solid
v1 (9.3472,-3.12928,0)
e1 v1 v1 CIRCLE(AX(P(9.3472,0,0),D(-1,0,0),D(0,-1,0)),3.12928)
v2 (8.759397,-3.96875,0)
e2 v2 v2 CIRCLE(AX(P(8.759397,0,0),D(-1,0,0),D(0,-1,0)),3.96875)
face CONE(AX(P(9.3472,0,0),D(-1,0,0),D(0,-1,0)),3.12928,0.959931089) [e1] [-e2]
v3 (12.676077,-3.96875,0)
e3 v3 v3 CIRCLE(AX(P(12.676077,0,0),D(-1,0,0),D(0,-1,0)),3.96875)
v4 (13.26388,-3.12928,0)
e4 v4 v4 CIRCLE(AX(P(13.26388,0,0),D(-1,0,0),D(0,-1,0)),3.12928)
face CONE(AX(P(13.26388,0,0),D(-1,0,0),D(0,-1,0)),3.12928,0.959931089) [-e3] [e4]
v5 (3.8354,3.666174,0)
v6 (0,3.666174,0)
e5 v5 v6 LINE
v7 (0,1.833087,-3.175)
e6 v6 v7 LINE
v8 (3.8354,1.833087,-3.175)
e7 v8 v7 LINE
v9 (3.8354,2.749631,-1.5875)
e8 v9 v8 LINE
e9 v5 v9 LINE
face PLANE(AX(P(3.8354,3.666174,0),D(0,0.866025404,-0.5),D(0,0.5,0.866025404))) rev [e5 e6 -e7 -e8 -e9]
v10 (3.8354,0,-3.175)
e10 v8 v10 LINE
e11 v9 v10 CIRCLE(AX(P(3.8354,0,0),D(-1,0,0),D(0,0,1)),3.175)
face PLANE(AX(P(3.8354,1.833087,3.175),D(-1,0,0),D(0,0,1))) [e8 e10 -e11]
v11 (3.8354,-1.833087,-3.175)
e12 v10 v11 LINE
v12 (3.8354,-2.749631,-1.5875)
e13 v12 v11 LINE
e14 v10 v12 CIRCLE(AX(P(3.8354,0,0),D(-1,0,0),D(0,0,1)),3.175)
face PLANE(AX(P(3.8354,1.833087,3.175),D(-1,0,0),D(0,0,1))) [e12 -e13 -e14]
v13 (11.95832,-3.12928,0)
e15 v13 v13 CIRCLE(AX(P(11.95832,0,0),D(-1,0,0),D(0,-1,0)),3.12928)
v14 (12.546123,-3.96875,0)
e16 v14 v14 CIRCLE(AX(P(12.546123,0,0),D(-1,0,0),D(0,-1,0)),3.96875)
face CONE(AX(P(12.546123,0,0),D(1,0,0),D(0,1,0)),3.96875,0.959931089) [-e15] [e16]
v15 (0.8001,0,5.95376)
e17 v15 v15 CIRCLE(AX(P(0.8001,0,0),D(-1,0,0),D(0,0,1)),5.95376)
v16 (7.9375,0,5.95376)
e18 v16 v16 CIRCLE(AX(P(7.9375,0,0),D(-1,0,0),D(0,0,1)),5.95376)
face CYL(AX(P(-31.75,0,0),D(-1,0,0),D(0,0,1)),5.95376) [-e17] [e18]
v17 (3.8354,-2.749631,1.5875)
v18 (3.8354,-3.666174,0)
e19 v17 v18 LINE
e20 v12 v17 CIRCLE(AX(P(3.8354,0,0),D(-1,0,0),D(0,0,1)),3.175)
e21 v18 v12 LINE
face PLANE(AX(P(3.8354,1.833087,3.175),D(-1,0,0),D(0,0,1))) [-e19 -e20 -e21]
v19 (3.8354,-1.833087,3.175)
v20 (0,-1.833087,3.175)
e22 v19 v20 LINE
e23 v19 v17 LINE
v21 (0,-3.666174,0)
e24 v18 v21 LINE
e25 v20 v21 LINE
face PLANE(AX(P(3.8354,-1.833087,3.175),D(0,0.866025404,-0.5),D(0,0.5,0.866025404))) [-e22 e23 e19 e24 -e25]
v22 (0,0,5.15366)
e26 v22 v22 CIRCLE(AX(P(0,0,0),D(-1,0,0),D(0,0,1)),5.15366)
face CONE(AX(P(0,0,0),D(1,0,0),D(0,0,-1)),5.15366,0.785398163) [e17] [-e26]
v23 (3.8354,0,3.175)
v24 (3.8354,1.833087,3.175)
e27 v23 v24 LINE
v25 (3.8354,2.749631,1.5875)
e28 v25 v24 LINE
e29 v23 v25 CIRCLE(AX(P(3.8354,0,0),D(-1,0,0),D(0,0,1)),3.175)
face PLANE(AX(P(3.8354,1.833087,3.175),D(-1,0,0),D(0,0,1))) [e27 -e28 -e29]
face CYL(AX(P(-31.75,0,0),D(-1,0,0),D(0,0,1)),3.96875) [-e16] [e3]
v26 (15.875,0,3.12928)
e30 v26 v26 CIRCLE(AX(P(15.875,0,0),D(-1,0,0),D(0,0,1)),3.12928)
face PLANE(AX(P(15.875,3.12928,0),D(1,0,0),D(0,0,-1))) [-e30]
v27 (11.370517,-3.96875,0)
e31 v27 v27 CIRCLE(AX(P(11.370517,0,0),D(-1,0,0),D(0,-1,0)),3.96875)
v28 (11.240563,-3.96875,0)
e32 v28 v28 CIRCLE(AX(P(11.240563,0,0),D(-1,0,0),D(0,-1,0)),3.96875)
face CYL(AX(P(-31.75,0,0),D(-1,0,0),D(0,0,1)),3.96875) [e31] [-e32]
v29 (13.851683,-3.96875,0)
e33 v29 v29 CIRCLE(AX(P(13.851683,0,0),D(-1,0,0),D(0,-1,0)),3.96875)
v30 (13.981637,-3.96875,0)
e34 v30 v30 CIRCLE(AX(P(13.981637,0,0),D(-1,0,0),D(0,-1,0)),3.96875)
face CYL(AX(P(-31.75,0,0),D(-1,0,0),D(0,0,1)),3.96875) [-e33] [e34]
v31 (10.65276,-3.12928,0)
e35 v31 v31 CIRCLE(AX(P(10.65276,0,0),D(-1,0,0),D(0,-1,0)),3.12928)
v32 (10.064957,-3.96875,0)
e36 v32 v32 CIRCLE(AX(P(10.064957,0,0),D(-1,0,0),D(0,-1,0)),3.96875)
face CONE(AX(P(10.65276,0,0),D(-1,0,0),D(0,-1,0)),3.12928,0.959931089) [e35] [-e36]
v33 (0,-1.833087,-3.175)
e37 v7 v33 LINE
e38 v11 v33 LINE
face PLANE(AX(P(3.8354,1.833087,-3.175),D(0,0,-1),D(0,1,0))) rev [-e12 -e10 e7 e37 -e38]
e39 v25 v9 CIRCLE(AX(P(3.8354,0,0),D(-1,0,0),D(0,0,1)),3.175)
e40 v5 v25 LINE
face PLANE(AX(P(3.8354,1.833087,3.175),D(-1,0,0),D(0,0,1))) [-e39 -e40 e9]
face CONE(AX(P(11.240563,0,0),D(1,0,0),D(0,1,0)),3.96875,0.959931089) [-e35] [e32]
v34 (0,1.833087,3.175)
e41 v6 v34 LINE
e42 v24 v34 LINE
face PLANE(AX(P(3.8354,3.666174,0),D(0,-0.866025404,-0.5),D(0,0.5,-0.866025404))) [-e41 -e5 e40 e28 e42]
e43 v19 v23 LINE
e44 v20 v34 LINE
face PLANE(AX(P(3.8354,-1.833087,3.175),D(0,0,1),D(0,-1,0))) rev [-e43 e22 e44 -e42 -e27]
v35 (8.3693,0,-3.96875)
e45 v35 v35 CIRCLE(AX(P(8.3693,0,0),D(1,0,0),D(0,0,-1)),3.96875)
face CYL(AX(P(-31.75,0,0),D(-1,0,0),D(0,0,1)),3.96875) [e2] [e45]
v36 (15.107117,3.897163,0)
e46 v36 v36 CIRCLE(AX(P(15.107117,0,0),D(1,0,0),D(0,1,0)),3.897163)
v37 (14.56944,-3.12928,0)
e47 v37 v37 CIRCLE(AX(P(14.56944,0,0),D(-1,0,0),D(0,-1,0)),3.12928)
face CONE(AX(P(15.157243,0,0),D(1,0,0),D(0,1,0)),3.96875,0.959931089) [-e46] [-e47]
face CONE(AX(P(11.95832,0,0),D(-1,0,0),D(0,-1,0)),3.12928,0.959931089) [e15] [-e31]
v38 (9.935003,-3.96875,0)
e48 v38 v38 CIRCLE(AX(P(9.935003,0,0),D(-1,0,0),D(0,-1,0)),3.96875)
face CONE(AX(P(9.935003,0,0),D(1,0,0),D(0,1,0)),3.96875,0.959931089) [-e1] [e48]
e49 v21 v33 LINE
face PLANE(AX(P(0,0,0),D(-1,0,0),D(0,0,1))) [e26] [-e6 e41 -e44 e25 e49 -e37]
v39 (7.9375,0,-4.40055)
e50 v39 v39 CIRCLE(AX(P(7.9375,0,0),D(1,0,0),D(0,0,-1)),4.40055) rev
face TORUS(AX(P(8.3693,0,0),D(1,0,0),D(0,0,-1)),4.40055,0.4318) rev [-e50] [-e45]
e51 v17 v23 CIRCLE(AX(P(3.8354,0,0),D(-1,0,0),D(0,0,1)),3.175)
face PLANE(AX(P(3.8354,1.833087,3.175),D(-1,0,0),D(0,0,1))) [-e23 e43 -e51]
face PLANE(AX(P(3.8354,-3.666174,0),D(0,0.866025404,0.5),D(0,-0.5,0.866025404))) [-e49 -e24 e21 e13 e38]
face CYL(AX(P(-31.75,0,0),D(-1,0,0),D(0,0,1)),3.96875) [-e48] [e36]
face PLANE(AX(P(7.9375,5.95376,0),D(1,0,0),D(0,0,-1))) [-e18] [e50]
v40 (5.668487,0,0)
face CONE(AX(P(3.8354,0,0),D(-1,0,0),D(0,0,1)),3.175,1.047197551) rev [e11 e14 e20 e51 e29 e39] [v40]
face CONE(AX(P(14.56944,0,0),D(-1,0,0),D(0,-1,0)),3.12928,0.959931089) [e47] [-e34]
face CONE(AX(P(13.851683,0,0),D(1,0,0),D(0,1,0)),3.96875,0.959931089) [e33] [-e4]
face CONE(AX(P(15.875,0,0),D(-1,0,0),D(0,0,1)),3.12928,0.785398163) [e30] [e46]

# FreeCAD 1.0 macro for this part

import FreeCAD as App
import Part
import Sketcher
from FreeCAD import Vector
Q = App.Units.Quantity


def edges_at(feature, points):
    """Names of the edges that pass closest to the given points."""
    edges = feature.Shape.Edges
    near = lambda p: min(range(len(edges)), key=lambda i: edges[i].distToShape(Part.Vertex(*p))[0])
    return sorted({f"Edge{near(p) + 1}" for p in points})


def add_polygon(sketch, points):
    """Adds a closed chain of lines whose ends are joined by coincident constraints."""
    first, n = sketch.GeometryCount, len(points)
    for a, b in zip(points, points[1:] + points[:1]):
        sketch.addGeometry(Part.LineSegment(App.Vector(*a, 0), App.Vector(*b, 0)), False)
    for i in range(n):
        sketch.addConstraint(Sketcher.Constraint("Coincident", first + i, 2, first + (i + 1) % n, 1))

doc = App.newDocument("Part")
body = doc.addObject("PartDesign::Body", "Body")

sketch1 = doc.addObject("Sketcher::SketchObject", "Sketch")
body.addObject(sketch1)
sketch1.AttachmentSupport = (doc.XY_Plane, [""])
sketch1.MapMode = "FlatFace"
add_polygon(sketch1, [(0, 5.2), (0, 0), (15.9, 0), (15.9, 3.1), (15, 4), (7.9, 4), (7.9, 6), (0.8, 6)])
sketch1.addConstraint(Sketcher.Constraint("Vertical", 0))
sketch1.addConstraint(Sketcher.Constraint("Horizontal", 1))
sketch1.addConstraint(Sketcher.Constraint("Vertical", 2))
sketch1.addConstraint(Sketcher.Constraint("Horizontal", 4))
sketch1.addConstraint(Sketcher.Constraint("Vertical", 5))
sketch1.addConstraint(Sketcher.Constraint("Horizontal", 6))
sketch1.addConstraint(Sketcher.Constraint("Coincident", 0, 2, -1, 1))
sketch1.addConstraint(Sketcher.Constraint("Perpendicular", 3, 7))
sketch1.addConstraint(Sketcher.Constraint("Angle", 3, Q("135 deg")))
sketch1.addConstraint(Sketcher.Constraint("DistanceX", 1, 1, 1, 2, Q("0.625 in")))
sketch1.addConstraint(Sketcher.Constraint("DistanceX", 6, 2, 6, 1, Q("0.281 in")))
sketch1.addConstraint(Sketcher.Constraint("DistanceY", 0, 2, 0, 1, Q("0.2029 in")))
sketch1.addConstraint(Sketcher.Constraint("DistanceY", 2, 1, 2, 2, Q("0.1232 in")))
sketch1.addConstraint(Sketcher.Constraint("DistanceY", -1, 1, 3, 2, Q("0.15625 in")))
sketch1.addConstraint(Sketcher.Constraint("DistanceX", -1, 1, 4, 2, Q("0.3125 in")))
revolution = doc.addObject("PartDesign::Revolution", "Revolution")
body.addObject(revolution)
revolution.Profile = sketch1
revolution.ReferenceAxis = (sketch1, ["H_Axis"])
revolution.Angle = 360
doc.recompute()

fillet = doc.addObject("PartDesign::Fillet", "Fillet")
body.addObject(fillet)
fillet.Base = (revolution, edges_at(revolution, [(7.938, 0, -3.969)]))
fillet.Radius = Q("0.017 in")

sketch2 = doc.addObject("Sketcher::SketchObject", "Sketch001")
body.addObject(sketch2)
sketch2.AttachmentSupport = (doc.XY_Plane, [""])
sketch2.MapMode = "FlatFace"
add_polygon(sketch2, [(3.8, 3.2), (0, 3.2), (0, 0), (5.7, 0)])
sketch2.addConstraint(Sketcher.Constraint("Horizontal", 0))
sketch2.addConstraint(Sketcher.Constraint("Vertical", 1))
sketch2.addConstraint(Sketcher.Constraint("Horizontal", 2))
sketch2.addConstraint(Sketcher.Constraint("Coincident", 1, 2, -1, 1))
sketch2.addConstraint(Sketcher.Constraint("Angle", 3, Q("120 deg")))
sketch2.addConstraint(Sketcher.Constraint("DistanceX", 0, 2, 0, 1, Q("0.151 in")))
sketch2.addConstraint(Sketcher.Constraint("DistanceY", 1, 2, 1, 1, Q("0.125 in")))
groove = doc.addObject("PartDesign::Groove", "Groove")
body.addObject(groove)
groove.Profile = sketch2
groove.ReferenceAxis = (sketch2, ["H_Axis"])
groove.Angle = 360

sketch3 = doc.addObject("Sketcher::SketchObject", "Sketch002")
body.addObject(sketch3)
sketch3.AttachmentSupport = (doc.YZ_Plane, [""])
sketch3.MapMode = "FlatFace"
add_polygon(sketch3, [(3.7, 0), (1.8, -3.2), (-1.8, -3.2), (-3.7, 0), (-1.8, 3.2), (1.8, 3.2)])
sketch3.addConstraint(Sketcher.Constraint("Horizontal", 1))
sketch3.addConstraint(Sketcher.Constraint("Horizontal", 4))
sketch3.addConstraint(Sketcher.Constraint("Symmetric", 0, 2, 3, 2, -1, 1))
sketch3.addConstraint(Sketcher.Constraint("Symmetric", 2, 2, 5, 2, -1, 1))
sketch3.addConstraint(Sketcher.Constraint("PointOnObject", 2, 2, -1))
sketch3.addConstraint(Sketcher.Constraint("Parallel", 2, 5))
sketch3.addConstraint(Sketcher.Constraint("Vertical", 1, 2, 3, 2))
sketch3.addConstraint(Sketcher.Constraint("Angle", 0, Q("-120 deg")))
sketch3.addConstraint(Sketcher.Constraint("DistanceY", 1, 2, 3, 2, Q("0.25 in")))
sketch3.addConstraint(Sketcher.Constraint("DistanceX", 1, 2, 1, 1, Q("3.666174 mm")))
pocket1 = doc.addObject("PartDesign::Pocket", "Pocket")
body.addObject(pocket1)
pocket1.Profile = sketch3
pocket1.Length = Q("0.151 in")
pocket1.Reversed = True

sketch4 = doc.addObject("Sketcher::SketchObject", "Sketch003")
body.addObject(sketch4)
sketch4.AttachmentSupport = (doc.XY_Plane, [""])
sketch4.MapMode = "FlatFace"
add_polygon(sketch4, [(9.3, -3.1), (8.8, -4), (8.8, -5), (9.9, -5), (9.9, -4)])
sketch4.addConstraint(Sketcher.Constraint("Vertical", 1))
sketch4.addConstraint(Sketcher.Constraint("Horizontal", 2))
sketch4.addConstraint(Sketcher.Constraint("Vertical", 3))
sketch4.addConstraint(Sketcher.Constraint("Horizontal", 0, 2, 3, 2))
sketch4.addConstraint(Sketcher.Constraint("Equal", 0, 4))
sketch4.addConstraint(Sketcher.Constraint("Angle", 0, Q("-125 deg")))
sketch4.addConstraint(Sketcher.Constraint("DistanceY", 0, 2, -1, 1, Q("0.15625 in")))
sketch4.addConstraint(Sketcher.Constraint("DistanceX", -1, 1, 4, 2, Q("0.368 in")))
sketch4.addConstraint(Sketcher.Constraint("DistanceY", 4, 2, -1, 1, Q("0.1232 in")))
sketch4.addConstraint(Sketcher.Constraint("DistanceY", 1, 2, 1, 1, Q("0.992188 mm")))
groove2 = doc.addObject("PartDesign::Groove", "Groove001")
body.addObject(groove2)
groove2.Profile = sketch4
groove2.ReferenceAxis = (sketch4, ["H_Axis"])
groove2.Angle = 360
doc.recompute()

linearpattern = doc.addObject("PartDesign::LinearPattern", "LinearPattern")
body.addObject(linearpattern)
linearpattern.Originals = [groove2]
linearpattern.Direction = (doc.X_Axis, [""])
linearpattern.Mode = "offset"
linearpattern.Offset = Q("0.0514 in")
linearpattern.Occurrences = 5
body.Tip = linearpattern

doc.recompute()
